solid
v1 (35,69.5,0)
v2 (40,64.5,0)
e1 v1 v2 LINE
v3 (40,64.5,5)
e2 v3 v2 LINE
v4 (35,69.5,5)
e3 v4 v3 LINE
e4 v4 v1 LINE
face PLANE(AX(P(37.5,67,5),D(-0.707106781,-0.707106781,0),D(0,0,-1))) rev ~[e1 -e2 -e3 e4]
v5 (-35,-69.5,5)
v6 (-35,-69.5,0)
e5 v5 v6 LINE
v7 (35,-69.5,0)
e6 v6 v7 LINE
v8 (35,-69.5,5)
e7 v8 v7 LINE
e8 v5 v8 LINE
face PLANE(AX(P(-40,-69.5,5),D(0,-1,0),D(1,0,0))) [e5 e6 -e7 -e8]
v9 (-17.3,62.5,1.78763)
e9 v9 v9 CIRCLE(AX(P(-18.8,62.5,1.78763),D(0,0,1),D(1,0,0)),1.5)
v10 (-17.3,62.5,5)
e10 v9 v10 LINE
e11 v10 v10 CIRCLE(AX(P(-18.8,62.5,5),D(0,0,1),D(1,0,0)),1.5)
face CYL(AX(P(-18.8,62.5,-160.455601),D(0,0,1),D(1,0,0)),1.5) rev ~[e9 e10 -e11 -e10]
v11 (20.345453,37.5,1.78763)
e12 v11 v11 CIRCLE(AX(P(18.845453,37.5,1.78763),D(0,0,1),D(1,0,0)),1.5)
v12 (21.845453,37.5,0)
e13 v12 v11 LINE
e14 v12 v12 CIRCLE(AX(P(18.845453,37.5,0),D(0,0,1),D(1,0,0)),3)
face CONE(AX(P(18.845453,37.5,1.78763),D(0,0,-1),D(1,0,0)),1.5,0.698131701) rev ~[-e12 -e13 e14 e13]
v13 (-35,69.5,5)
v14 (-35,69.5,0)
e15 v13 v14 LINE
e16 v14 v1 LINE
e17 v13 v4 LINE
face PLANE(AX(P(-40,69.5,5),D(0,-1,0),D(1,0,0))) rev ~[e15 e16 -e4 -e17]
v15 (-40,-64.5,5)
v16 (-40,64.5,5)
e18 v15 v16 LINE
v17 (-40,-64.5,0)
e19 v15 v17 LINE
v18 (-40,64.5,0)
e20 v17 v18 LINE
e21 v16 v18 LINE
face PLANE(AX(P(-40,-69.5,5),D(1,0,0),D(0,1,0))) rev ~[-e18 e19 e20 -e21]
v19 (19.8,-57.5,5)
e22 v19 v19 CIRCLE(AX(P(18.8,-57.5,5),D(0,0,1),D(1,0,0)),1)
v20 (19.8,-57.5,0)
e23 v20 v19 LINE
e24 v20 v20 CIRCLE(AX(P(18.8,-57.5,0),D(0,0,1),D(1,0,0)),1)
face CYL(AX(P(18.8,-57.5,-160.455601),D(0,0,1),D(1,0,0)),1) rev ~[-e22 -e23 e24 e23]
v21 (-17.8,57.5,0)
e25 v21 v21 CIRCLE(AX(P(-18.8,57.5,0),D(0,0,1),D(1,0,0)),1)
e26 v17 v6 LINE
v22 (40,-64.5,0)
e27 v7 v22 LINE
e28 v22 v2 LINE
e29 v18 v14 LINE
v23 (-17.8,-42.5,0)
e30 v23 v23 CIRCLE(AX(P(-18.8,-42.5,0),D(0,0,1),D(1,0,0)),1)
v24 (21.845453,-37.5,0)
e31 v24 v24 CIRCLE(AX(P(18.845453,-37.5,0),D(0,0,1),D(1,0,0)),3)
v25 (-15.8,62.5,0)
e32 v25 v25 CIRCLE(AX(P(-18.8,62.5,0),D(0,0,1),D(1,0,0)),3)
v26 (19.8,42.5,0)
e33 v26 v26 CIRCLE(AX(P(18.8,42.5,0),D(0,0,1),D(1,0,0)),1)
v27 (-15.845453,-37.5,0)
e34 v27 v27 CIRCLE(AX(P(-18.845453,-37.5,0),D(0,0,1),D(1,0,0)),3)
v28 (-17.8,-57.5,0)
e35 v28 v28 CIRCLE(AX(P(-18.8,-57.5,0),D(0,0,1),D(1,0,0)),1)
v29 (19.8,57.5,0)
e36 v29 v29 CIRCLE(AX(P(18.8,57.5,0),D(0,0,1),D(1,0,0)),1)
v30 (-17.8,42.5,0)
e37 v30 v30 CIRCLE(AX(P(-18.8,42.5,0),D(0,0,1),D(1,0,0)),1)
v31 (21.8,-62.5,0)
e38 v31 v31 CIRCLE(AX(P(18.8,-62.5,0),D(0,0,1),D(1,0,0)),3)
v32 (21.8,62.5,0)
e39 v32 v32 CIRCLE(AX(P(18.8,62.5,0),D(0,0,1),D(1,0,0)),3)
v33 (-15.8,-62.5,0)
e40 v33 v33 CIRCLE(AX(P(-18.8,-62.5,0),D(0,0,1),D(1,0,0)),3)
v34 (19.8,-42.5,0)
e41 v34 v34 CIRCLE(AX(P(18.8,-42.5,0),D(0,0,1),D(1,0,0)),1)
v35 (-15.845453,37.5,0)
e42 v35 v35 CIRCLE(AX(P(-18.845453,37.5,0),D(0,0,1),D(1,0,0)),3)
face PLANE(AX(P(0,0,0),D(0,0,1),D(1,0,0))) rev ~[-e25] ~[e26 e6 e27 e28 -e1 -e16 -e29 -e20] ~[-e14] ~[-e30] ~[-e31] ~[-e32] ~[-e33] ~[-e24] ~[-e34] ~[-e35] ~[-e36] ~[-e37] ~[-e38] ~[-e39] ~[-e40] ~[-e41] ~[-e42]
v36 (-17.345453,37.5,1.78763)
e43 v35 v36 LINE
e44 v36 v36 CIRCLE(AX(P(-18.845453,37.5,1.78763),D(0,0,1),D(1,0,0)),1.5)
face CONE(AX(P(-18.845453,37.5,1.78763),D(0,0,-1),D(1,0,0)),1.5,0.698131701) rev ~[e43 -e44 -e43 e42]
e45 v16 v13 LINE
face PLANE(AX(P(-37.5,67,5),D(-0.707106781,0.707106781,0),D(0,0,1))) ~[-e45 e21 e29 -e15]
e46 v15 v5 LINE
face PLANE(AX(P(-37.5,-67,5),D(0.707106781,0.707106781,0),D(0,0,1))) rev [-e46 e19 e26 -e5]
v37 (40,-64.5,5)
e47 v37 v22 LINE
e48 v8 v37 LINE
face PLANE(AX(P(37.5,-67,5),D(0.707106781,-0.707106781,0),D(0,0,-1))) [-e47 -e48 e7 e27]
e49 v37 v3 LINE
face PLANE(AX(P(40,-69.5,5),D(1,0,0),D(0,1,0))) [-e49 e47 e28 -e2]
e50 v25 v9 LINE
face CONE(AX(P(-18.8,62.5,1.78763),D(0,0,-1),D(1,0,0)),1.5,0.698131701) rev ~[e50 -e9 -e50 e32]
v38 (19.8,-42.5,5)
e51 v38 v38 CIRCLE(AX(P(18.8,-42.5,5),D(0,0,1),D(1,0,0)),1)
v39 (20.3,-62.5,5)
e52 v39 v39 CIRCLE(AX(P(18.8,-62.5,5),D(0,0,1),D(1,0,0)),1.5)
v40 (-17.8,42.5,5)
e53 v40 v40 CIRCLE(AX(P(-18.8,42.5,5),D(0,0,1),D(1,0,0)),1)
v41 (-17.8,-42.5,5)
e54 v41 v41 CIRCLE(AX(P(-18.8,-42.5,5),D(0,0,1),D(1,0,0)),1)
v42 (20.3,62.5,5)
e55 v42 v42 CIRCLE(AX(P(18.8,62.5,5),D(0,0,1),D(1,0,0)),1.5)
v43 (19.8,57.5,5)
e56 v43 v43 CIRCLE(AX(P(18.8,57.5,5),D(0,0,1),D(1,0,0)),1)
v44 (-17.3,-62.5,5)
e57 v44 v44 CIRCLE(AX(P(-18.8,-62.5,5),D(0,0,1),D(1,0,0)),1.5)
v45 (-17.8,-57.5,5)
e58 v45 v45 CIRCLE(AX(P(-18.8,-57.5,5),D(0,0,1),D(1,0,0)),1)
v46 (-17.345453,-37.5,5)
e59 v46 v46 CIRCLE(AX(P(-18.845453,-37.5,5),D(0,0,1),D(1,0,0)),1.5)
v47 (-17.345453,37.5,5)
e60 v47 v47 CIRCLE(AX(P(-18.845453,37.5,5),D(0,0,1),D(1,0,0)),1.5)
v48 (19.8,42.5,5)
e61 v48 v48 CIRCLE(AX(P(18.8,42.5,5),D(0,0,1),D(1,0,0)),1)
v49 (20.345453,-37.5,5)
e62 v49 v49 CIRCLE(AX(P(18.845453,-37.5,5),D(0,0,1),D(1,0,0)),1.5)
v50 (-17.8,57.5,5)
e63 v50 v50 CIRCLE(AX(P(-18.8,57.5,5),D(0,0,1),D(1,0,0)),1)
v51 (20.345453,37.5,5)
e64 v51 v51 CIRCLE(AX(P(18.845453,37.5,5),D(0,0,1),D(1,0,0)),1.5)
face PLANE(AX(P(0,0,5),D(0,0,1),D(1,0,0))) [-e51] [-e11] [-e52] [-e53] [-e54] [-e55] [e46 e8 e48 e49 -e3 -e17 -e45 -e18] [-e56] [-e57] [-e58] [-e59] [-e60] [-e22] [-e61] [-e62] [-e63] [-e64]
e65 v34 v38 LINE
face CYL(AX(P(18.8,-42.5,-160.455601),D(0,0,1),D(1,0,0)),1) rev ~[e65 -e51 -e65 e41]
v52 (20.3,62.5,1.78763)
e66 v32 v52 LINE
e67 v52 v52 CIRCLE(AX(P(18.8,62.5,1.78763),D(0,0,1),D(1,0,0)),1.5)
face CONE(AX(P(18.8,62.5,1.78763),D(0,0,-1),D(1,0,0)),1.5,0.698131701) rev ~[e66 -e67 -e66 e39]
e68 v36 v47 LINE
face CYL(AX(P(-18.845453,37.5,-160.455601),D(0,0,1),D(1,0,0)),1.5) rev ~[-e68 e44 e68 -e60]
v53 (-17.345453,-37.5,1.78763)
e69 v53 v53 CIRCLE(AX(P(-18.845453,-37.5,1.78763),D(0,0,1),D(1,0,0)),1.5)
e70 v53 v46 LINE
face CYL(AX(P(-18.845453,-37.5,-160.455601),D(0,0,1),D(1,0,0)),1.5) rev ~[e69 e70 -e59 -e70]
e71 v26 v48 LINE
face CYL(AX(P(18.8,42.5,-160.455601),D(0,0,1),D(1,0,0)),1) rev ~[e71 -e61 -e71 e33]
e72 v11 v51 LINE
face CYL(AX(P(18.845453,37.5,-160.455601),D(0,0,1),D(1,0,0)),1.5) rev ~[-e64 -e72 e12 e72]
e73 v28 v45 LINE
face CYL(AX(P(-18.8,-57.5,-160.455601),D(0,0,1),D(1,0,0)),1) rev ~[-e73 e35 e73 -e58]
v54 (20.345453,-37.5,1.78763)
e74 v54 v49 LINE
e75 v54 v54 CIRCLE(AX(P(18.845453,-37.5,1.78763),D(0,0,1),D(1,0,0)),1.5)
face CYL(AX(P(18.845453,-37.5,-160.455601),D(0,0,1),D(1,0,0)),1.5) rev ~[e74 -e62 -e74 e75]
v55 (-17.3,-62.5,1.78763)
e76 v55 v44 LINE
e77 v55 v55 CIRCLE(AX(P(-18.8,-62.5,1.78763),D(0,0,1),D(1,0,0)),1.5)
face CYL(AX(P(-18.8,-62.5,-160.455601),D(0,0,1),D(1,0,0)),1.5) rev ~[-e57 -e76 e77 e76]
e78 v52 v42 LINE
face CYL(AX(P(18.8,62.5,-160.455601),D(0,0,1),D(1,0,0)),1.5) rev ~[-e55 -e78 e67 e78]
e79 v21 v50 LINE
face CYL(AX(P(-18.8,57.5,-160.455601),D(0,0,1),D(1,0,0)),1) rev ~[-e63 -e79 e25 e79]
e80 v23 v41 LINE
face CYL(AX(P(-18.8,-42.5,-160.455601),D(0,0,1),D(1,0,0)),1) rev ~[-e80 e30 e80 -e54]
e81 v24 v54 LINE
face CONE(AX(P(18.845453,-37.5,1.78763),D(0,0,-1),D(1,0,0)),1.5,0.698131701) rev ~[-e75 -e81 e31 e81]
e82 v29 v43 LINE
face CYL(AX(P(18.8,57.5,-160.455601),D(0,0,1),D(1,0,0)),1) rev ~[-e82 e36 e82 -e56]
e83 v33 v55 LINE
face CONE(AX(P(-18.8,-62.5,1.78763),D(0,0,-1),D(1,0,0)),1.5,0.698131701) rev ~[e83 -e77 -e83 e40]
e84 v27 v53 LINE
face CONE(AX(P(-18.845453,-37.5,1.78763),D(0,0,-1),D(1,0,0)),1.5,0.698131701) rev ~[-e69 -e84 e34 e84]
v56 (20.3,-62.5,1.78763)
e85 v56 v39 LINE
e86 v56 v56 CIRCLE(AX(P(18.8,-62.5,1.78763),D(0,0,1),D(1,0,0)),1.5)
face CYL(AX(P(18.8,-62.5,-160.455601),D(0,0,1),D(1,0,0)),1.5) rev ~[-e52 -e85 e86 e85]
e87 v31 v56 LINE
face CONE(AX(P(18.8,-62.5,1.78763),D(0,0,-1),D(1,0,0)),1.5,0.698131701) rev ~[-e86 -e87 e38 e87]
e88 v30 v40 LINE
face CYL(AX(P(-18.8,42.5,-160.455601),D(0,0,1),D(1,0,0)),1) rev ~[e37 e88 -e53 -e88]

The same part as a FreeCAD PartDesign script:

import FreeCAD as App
import Part
import Sketcher
from FreeCAD import Vector


def edges_at(feature, points):
    """Names of the edges that pass closest to the given points."""
    edges = feature.Shape.Edges
    near = lambda p: min(range(len(edges)), key=lambda i: edges[i].distToShape(Part.Vertex(*p))[0])
    return sorted({f"Edge{near(p) + 1}" for p in points})


def add_polygon(sketch, points):
    """Adds a closed chain of lines whose ends are joined by coincident constraints."""
    first, n = sketch.GeometryCount, len(points)
    for a, b in zip(points, points[1:] + points[:1]):
        sketch.addGeometry(Part.LineSegment(App.Vector(*a, 0), App.Vector(*b, 0)), False)
    for i in range(n):
        sketch.addConstraint(Sketcher.Constraint("Coincident", first + i, 2, first + (i + 1) % n, 1))

doc = App.newDocument("Part")
params = doc.addObject("Spreadsheet::Sheet", "Params")
for row, (alias, value) in enumerate([
    ("sketch1_width", "80 mm"),
    ("sketch1_height", "139 mm"),
    ("pad1_length", "5 mm"),
    ("sketch2_diameter", "3 mm"),
    ("hole_diameter", "3 mm"),
    ("sketch3_diameter", "2 mm"),
    ("hole2_diameter", "2 mm"),
    ("chamfer_size", "1.5 mm"),
    ("chamfer_size2", "1.78763 mm"),
    ("chamfer2_size", "5 mm"),
], start=1):
    params.set(f"A{row}", alias)
    params.set(f"B{row}", "=" + value)
    params.setAlias(f"B{row}", alias)

body = doc.addObject("PartDesign::Body", "Body")

# Sketch on XY plane
sketch1 = doc.addObject("Sketcher::SketchObject", "Sketch")
body.addObject(sketch1)
sketch1.AttachmentSupport = (doc.XY_Plane, [""])
sketch1.MapMode = "FlatFace"
sketch1.AttachmentOffset = App.Placement(Vector(0, 0, 5), App.Rotation())
add_polygon(sketch1, [(-40, 69.5), (-40, -69.5), (40, -69.5), (40, 69.5)])  # lines 0-3
sketch1.addConstraint([
    Sketcher.Constraint("Vertical", 0),
    Sketcher.Constraint("Horizontal", 1),
    Sketcher.Constraint("Vertical", 2),
    Sketcher.Constraint("Horizontal", 3),
    Sketcher.Constraint("Symmetric", 0, 2, 2, 2, -1, 1),
    Sketcher.Constraint("DistanceX", 1, 1, 1, 2, 80.0),
    Sketcher.Constraint("DistanceY", 0, 2, 0, 1, 139.0),
])
sketch1.setExpression("Constraints[9]", "Params.sketch1_width")
sketch1.setExpression("Constraints[10]", "Params.sketch1_height")
pad1 = doc.addObject("PartDesign::Pad", "Pad")
body.addObject(pad1)
pad1.Profile = sketch1
pad1.setExpression("Length", "Params.pad1_length")
pad1.Reversed = True

# Sketch on XY plane
sketch2 = doc.addObject("Sketcher::SketchObject", "Sketch001")
body.addObject(sketch2)
sketch2.AttachmentSupport = (doc.XY_Plane, [""])
sketch2.MapMode = "FlatFace"
sketch2.addGeometry([
    Part.Circle(Vector(18.8, 62.5, 0), Vector(0, 0, 1), 1.5),  # 0
    Part.Circle(Vector(-18.8, -62.5, 0), Vector(0, 0, 1), 1.5),  # 1
    Part.Circle(Vector(18.845453, -37.5, 0), Vector(0, 0, 1), 1.5),  # 2
    Part.Circle(Vector(-18.845453, -37.5, 0), Vector(0, 0, 1), 1.5),  # 3
    Part.Circle(Vector(-18.8, 62.5, 0), Vector(0, 0, 1), 1.5),  # 4
    Part.Circle(Vector(18.845453, 37.5, 0), Vector(0, 0, 1), 1.5),  # 5
    Part.Circle(Vector(-18.845453, 37.5, 0), Vector(0, 0, 1), 1.5),  # 6
    Part.Circle(Vector(18.8, -62.5, 0), Vector(0, 0, 1), 1.5),  # 7
], False)
sketch2.addConstraint([
    Sketcher.Constraint("Equal", 0, 1),
    Sketcher.Constraint("Equal", 1, 2),
    Sketcher.Constraint("Equal", 2, 3),
    Sketcher.Constraint("Equal", 3, 4),
    Sketcher.Constraint("Equal", 4, 5),
    Sketcher.Constraint("Equal", 5, 6),
    Sketcher.Constraint("Equal", 6, 7),
    Sketcher.Constraint("Symmetric", 0, 3, 1, 3, -1, 1),
    Sketcher.Constraint("Symmetric", 3, 3, 5, 3, -1, 1),
    Sketcher.Constraint("Symmetric", 2, 3, 6, 3, -1, 1),
    Sketcher.Constraint("Symmetric", 4, 3, 7, 3, -1, 1),
    Sketcher.Constraint("Symmetric", 2, 3, 3, 3, -2),
    Sketcher.Constraint("Symmetric", 0, 3, 4, 3, -2),
    Sketcher.Constraint("Diameter", 0, 3.0),
    Sketcher.Constraint("DistanceY", 1, 3, 0, 3, 125.0),
    Sketcher.Constraint("DistanceY", 1, 3, 2, 3, 25.0),
    Sketcher.Constraint("DistanceX", -1, 1, 0, 3, 18.8),
    Sketcher.Constraint("DistanceX", -1, 1, 2, 3, 18.845453),
])
sketch2.setExpression("Constraints[13]", "Params.sketch2_diameter")
doc.recompute()
hole = doc.addObject("PartDesign::Hole", "Hole")
body.addObject(hole)
hole.Profile = sketch2
hole.ThreadType = "None"
hole.setExpression("Diameter", "Params.hole_diameter")
hole.DepthType = "ThroughAll"
hole.Reversed = True

# Sketch on XY plane
sketch3 = doc.addObject("Sketcher::SketchObject", "Sketch002")
body.addObject(sketch3)
sketch3.AttachmentSupport = (doc.XY_Plane, [""])
sketch3.MapMode = "FlatFace"
sketch3.addGeometry([
    Part.Circle(Vector(18.8, 42.5, 0), Vector(0, 0, 1), 1),  # 0
    Part.Circle(Vector(18.8, 57.5, 0), Vector(0, 0, 1), 1),  # 1
    Part.Circle(Vector(-18.8, 42.5, 0), Vector(0, 0, 1), 1),  # 2
    Part.Circle(Vector(18.8, -57.5, 0), Vector(0, 0, 1), 1),  # 3
    Part.Circle(Vector(18.8, -42.5, 0), Vector(0, 0, 1), 1),  # 4
    Part.Circle(Vector(-18.8, -57.5, 0), Vector(0, 0, 1), 1),  # 5
    Part.Circle(Vector(-18.8, -42.5, 0), Vector(0, 0, 1), 1),  # 6
    Part.Circle(Vector(-18.8, 57.5, 0), Vector(0, 0, 1), 1),  # 7
], False)
sketch3.addConstraint([
    Sketcher.Constraint("Equal", 0, 1),
    Sketcher.Constraint("Equal", 1, 2),
    Sketcher.Constraint("Equal", 2, 3),
    Sketcher.Constraint("Equal", 3, 4),
    Sketcher.Constraint("Equal", 4, 5),
    Sketcher.Constraint("Equal", 5, 6),
    Sketcher.Constraint("Equal", 6, 7),
    Sketcher.Constraint("Symmetric", 2, 3, 4, 3, -1, 1),
    Sketcher.Constraint("Symmetric", 1, 3, 5, 3, -1, 1),
    Sketcher.Constraint("Symmetric", 0, 3, 6, 3, -1, 1),
    Sketcher.Constraint("Symmetric", 3, 3, 7, 3, -1, 1),
    Sketcher.Constraint("Symmetric", 0, 3, 2, 3, -2),
    Sketcher.Constraint("Symmetric", 3, 3, 5, 3, -2),
    Sketcher.Constraint("Vertical", 0, 3, 1, 3),
    Sketcher.Constraint("Diameter", 0, 2.0),
    Sketcher.Constraint("DistanceY", 0, 3, 1, 3, 15.0),
    Sketcher.Constraint("DistanceY", 3, 3, 0, 3, 100.0),
    Sketcher.Constraint("DistanceX", -1, 1, 0, 3, 18.8),
])
sketch3.setExpression("Constraints[14]", "Params.sketch3_diameter")
doc.recompute()
hole2 = doc.addObject("PartDesign::Hole", "Hole001")
body.addObject(hole2)
hole2.Profile = sketch3
hole2.ThreadType = "None"
hole2.setExpression("Diameter", "Params.hole2_diameter")
hole2.DepthType = "ThroughAll"
hole2.Reversed = True
doc.recompute()

chamfer = doc.addObject("PartDesign::Chamfer", "Chamfer")
body.addObject(chamfer)
chamfer.Base = (hole2, edges_at(hole2, [
    (17.3, -62.5, 0),
    (-20.345, 37.5, 0),
    (17.345, 37.5, 0),
    (-20.3, 62.5, 0),
    (-20.345, -37.5, 0),
    (17.345, -37.5, 0),
    (-20.3, -62.5, 0),
    (17.3, 62.5, 0),
]))
chamfer.ChamferType = "Two distances"
chamfer.setExpression("Size", "Params.chamfer_size")
chamfer.setExpression("Size2", "Params.chamfer_size2")
doc.recompute()

chamfer2 = doc.addObject("PartDesign::Chamfer", "Chamfer001")
body.addObject(chamfer2)
chamfer2.Base = (chamfer, edges_at(chamfer, [
    (-40, 69.5, 2.5),
    (40, 69.5, 2.5),
    (40, -69.5, 2.5),
    (-40, -69.5, 2.5),
]))
chamfer2.setExpression("Size", "Params.chamfer2_size")

doc.recompute()
